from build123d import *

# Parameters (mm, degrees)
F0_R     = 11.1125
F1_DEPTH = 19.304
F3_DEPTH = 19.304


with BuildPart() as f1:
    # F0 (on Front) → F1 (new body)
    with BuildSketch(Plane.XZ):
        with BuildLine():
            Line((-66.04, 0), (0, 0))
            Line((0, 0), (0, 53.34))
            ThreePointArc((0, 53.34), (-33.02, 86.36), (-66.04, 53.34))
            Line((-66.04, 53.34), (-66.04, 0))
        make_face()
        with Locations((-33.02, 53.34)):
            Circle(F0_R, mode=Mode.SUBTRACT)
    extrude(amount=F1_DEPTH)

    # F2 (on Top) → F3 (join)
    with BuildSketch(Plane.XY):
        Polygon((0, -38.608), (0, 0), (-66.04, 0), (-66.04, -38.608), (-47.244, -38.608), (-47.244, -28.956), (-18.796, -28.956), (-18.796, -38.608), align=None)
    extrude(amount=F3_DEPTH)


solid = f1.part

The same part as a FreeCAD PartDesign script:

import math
import FreeCAD as App
import Part
import Sketcher
from FreeCAD import Vector
Q = App.Units.Quantity

doc = App.newDocument("Part")
params = doc.addObject("Spreadsheet::Sheet", "Params")
for row, (alias, value) in enumerate([
    ("sketch1_radius", "1.3 in"),
    ("sketch1_diameter", "0.875 in"),
    ("sketch1_height", "2.1 in"),
    ("pad1_length", "0.76 in"),
    ("sketch2_width", "2.6 in"),
    ("sketch2_width2", "0.74 in"),
    ("sketch2_height", "1.52 in"),
    ("sketch2_height2", "0.38 in"),
    ("pad2_length", "0.76 in"),
], start=1):
    params.set(f"A{row}", alias)
    params.set(f"B{row}", "=" + value)
    params.setAlias(f"B{row}", alias)

body = doc.addObject("PartDesign::Body", "Body")

# Sketch on XZ plane
sketch1 = body.newObject("Sketcher::SketchObject", "Sketch")
sketch1.AttachmentSupport = (doc.getObject("XZ_Plane"), [""])
sketch1.MapMode = "FlatFace"
sketch1.addGeometry([
    Part.LineSegment(Vector(-66, 0, 0), Vector(0, 0, 0)),  # 0
    Part.LineSegment(Vector(0, 0, 0), Vector(0, 53, 0)),  # 1
    Part.ArcOfCircle(Part.Circle(Vector(-33, 53, 0), Vector(0, 0, 1), 33), math.radians(0), math.radians(180)),  # 2
    Part.LineSegment(Vector(-66, 53, 0), Vector(-66, 0, 0)),  # 3
    Part.Circle(Vector(-33, 53, 0), Vector(0, 0, 1), 11),  # 4
], False)
sketch1.addConstraint([
    Sketcher.Constraint("Coincident", 0, 2, 1, 1),
    Sketcher.Constraint("Tangent", 1, 2, 2, 1),
    Sketcher.Constraint("Tangent", 2, 2, 3, 1),
    Sketcher.Constraint("Coincident", 3, 2, 0, 1),
    Sketcher.Constraint("Horizontal", 0),
    Sketcher.Constraint("Vertical", 1),
    Sketcher.Constraint("Vertical", 3),
    Sketcher.Constraint("Coincident", 0, 2, -1, 1),
    Sketcher.Constraint("Coincident", 4, 3, 2, 3),
    Sketcher.Constraint("Radius", 2, Q("1.3 in")),
    Sketcher.Constraint("Diameter", 4, Q("0.875 in")),
    Sketcher.Constraint("DistanceY", 1, 1, 1, 2, Q("2.1 in")),
])
sketch1.setExpression("Constraints[9]", "Params.sketch1_radius")
sketch1.setExpression("Constraints[10]", "Params.sketch1_diameter")
sketch1.setExpression("Constraints[11]", "Params.sketch1_height")
pad1 = body.newObject("PartDesign::Pad", "Pad")
pad1.Profile = sketch1
pad1.setExpression("Length", "Params.pad1_length")

# Sketch on XY plane
sketch2 = body.newObject("Sketcher::SketchObject", "Sketch001")
sketch2.AttachmentSupport = (doc.getObject("XY_Plane"), [""])
sketch2.MapMode = "FlatFace"
sketch2.addGeometry([
    Part.LineSegment(Vector(0, -39, 0), Vector(0, 0, 0)),  # 0
    Part.LineSegment(Vector(0, 0, 0), Vector(-66, 0, 0)),  # 1
    Part.LineSegment(Vector(-66, 0, 0), Vector(-66, -39, 0)),  # 2
    Part.LineSegment(Vector(-66, -39, 0), Vector(-47, -39, 0)),  # 3
    Part.LineSegment(Vector(-47, -39, 0), Vector(-47, -29, 0)),  # 4
    Part.LineSegment(Vector(-47, -29, 0), Vector(-19, -29, 0)),  # 5
    Part.LineSegment(Vector(-19, -29, 0), Vector(-19, -39, 0)),  # 6
    Part.LineSegment(Vector(-19, -39, 0), Vector(0, -39, 0)),  # 7
], False)
sketch2.addConstraint([
    Sketcher.Constraint("Coincident", 0, 2, 1, 1),
    Sketcher.Constraint("Coincident", 1, 2, 2, 1),
    Sketcher.Constraint("Coincident", 2, 2, 3, 1),
    Sketcher.Constraint("Coincident", 3, 2, 4, 1),
    Sketcher.Constraint("Coincident", 4, 2, 5, 1),
    Sketcher.Constraint("Coincident", 5, 2, 6, 1),
    Sketcher.Constraint("Coincident", 6, 2, 7, 1),
    Sketcher.Constraint("Coincident", 7, 2, 0, 1),
    Sketcher.Constraint("Vertical", 0),
    Sketcher.Constraint("Horizontal", 1),
    Sketcher.Constraint("Vertical", 2),
    Sketcher.Constraint("Horizontal", 3),
    Sketcher.Constraint("Vertical", 4),
    Sketcher.Constraint("Horizontal", 5),
    Sketcher.Constraint("Vertical", 6),
    Sketcher.Constraint("Horizontal", 7),
    Sketcher.Constraint("Coincident", 0, 2, -1, 1),
    Sketcher.Constraint("Horizontal", 3, 2, 6, 2),
    Sketcher.Constraint("Equal", 3, 7),
    Sketcher.Constraint("DistanceX", 1, 2, 1, 1, Q("2.6 in")),
    Sketcher.Constraint("DistanceX", 3, 1, 3, 2, Q("0.74 in")),
    Sketcher.Constraint("DistanceY", 0, 1, 0, 2, Q("1.52 in")),
    Sketcher.Constraint("DistanceY", 4, 1, 4, 2, Q("0.38 in")),
])
sketch2.setExpression("Constraints[19]", "Params.sketch2_width")
sketch2.setExpression("Constraints[20]", "Params.sketch2_width2")
sketch2.setExpression("Constraints[21]", "Params.sketch2_height")
sketch2.setExpression("Constraints[22]", "Params.sketch2_height2")
pad2 = body.newObject("PartDesign::Pad", "Pad001")
pad2.Profile = sketch2
pad2.setExpression("Length", "Params.pad2_length")

doc.recompute()
